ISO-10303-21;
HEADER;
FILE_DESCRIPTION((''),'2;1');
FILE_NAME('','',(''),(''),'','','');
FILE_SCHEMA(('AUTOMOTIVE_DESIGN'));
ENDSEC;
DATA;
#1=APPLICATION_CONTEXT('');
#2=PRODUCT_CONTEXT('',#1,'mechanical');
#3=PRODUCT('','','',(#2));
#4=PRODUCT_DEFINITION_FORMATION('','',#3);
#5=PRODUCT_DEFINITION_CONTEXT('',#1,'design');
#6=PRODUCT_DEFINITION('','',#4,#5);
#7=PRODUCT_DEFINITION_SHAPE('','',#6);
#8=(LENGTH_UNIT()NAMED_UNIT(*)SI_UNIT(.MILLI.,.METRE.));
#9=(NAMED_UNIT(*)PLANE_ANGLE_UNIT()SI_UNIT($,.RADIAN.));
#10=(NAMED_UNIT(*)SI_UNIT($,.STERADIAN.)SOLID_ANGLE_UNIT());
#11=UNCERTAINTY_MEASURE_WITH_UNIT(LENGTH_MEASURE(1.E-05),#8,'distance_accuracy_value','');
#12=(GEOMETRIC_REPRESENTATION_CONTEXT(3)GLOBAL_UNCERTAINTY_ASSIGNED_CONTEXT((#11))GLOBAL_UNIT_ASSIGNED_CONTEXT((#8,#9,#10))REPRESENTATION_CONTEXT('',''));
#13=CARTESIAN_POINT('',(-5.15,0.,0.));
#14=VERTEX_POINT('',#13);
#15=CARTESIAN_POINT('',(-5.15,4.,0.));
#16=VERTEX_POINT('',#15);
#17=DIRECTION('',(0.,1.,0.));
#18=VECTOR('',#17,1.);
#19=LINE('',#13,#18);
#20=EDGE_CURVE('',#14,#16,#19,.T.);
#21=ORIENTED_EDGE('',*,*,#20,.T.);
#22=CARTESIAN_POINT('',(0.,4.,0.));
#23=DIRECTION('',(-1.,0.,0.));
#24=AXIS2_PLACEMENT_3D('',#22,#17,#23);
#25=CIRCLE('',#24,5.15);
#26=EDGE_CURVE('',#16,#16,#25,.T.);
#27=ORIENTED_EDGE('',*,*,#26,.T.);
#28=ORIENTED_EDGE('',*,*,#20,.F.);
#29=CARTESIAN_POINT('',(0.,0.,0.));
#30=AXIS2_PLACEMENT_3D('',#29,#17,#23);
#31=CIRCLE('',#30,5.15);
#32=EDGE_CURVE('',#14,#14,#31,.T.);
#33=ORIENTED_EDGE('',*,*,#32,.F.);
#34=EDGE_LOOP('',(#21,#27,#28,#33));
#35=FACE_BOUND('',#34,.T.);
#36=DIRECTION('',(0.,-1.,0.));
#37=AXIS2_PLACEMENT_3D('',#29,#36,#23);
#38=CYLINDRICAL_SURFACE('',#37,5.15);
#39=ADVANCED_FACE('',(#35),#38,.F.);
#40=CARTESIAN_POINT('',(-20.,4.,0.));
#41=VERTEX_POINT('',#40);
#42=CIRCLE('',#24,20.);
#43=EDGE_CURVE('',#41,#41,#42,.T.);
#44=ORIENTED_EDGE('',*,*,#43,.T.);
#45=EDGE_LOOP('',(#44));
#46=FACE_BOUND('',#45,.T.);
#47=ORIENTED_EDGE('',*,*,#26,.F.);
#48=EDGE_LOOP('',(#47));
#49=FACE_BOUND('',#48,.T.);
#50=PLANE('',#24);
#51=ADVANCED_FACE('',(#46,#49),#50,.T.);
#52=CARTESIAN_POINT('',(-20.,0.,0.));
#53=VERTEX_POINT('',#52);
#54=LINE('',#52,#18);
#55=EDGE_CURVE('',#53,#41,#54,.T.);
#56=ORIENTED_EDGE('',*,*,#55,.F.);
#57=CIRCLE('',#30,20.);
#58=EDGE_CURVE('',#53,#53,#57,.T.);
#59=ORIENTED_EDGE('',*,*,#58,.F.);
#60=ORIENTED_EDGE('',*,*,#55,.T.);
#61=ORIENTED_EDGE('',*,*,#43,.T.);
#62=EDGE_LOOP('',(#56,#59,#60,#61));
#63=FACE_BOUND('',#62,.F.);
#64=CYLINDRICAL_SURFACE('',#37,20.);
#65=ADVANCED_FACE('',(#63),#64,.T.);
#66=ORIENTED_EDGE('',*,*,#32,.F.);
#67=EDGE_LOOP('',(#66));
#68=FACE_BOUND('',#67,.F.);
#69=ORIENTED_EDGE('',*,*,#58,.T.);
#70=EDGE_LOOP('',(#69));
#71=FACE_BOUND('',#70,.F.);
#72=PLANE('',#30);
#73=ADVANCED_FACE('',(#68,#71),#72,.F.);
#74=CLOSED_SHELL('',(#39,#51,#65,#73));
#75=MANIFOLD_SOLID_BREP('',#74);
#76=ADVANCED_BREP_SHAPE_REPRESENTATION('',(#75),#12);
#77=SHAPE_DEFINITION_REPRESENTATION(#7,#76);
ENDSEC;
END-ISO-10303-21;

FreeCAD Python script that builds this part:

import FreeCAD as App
import Part
import Sketcher
from FreeCAD import Vector

doc = App.newDocument("Part")
body = doc.addObject("PartDesign::Body", "Body")

sketch1 = body.newObject("Sketcher::SketchObject", "Sketch")
sketch1.AttachmentSupport = (doc.getObject("XZ_Plane"), [""])
sketch1.MapMode = "FlatFace"
sketch1.addGeometry([
    Part.Circle(Vector(0, 0, 0), Vector(0, 0, 1), 20),
    Part.Circle(Vector(0, 0, 0), Vector(0, 0, 1), 5.15),
], False)
sketch1.addConstraint([
    Sketcher.Constraint("Coincident", 0, 3, -1, 1),
    Sketcher.Constraint("Coincident", 1, 3, -1, 1),
    Sketcher.Constraint("Diameter", 0, 40.0),
    Sketcher.Constraint("Diameter", 1, 10.3),
])
pad1 = body.newObject("PartDesign::Pad", "Pad")
pad1.Profile = sketch1
pad1.Length = 4
pad1.Reversed = True

doc.recompute()
